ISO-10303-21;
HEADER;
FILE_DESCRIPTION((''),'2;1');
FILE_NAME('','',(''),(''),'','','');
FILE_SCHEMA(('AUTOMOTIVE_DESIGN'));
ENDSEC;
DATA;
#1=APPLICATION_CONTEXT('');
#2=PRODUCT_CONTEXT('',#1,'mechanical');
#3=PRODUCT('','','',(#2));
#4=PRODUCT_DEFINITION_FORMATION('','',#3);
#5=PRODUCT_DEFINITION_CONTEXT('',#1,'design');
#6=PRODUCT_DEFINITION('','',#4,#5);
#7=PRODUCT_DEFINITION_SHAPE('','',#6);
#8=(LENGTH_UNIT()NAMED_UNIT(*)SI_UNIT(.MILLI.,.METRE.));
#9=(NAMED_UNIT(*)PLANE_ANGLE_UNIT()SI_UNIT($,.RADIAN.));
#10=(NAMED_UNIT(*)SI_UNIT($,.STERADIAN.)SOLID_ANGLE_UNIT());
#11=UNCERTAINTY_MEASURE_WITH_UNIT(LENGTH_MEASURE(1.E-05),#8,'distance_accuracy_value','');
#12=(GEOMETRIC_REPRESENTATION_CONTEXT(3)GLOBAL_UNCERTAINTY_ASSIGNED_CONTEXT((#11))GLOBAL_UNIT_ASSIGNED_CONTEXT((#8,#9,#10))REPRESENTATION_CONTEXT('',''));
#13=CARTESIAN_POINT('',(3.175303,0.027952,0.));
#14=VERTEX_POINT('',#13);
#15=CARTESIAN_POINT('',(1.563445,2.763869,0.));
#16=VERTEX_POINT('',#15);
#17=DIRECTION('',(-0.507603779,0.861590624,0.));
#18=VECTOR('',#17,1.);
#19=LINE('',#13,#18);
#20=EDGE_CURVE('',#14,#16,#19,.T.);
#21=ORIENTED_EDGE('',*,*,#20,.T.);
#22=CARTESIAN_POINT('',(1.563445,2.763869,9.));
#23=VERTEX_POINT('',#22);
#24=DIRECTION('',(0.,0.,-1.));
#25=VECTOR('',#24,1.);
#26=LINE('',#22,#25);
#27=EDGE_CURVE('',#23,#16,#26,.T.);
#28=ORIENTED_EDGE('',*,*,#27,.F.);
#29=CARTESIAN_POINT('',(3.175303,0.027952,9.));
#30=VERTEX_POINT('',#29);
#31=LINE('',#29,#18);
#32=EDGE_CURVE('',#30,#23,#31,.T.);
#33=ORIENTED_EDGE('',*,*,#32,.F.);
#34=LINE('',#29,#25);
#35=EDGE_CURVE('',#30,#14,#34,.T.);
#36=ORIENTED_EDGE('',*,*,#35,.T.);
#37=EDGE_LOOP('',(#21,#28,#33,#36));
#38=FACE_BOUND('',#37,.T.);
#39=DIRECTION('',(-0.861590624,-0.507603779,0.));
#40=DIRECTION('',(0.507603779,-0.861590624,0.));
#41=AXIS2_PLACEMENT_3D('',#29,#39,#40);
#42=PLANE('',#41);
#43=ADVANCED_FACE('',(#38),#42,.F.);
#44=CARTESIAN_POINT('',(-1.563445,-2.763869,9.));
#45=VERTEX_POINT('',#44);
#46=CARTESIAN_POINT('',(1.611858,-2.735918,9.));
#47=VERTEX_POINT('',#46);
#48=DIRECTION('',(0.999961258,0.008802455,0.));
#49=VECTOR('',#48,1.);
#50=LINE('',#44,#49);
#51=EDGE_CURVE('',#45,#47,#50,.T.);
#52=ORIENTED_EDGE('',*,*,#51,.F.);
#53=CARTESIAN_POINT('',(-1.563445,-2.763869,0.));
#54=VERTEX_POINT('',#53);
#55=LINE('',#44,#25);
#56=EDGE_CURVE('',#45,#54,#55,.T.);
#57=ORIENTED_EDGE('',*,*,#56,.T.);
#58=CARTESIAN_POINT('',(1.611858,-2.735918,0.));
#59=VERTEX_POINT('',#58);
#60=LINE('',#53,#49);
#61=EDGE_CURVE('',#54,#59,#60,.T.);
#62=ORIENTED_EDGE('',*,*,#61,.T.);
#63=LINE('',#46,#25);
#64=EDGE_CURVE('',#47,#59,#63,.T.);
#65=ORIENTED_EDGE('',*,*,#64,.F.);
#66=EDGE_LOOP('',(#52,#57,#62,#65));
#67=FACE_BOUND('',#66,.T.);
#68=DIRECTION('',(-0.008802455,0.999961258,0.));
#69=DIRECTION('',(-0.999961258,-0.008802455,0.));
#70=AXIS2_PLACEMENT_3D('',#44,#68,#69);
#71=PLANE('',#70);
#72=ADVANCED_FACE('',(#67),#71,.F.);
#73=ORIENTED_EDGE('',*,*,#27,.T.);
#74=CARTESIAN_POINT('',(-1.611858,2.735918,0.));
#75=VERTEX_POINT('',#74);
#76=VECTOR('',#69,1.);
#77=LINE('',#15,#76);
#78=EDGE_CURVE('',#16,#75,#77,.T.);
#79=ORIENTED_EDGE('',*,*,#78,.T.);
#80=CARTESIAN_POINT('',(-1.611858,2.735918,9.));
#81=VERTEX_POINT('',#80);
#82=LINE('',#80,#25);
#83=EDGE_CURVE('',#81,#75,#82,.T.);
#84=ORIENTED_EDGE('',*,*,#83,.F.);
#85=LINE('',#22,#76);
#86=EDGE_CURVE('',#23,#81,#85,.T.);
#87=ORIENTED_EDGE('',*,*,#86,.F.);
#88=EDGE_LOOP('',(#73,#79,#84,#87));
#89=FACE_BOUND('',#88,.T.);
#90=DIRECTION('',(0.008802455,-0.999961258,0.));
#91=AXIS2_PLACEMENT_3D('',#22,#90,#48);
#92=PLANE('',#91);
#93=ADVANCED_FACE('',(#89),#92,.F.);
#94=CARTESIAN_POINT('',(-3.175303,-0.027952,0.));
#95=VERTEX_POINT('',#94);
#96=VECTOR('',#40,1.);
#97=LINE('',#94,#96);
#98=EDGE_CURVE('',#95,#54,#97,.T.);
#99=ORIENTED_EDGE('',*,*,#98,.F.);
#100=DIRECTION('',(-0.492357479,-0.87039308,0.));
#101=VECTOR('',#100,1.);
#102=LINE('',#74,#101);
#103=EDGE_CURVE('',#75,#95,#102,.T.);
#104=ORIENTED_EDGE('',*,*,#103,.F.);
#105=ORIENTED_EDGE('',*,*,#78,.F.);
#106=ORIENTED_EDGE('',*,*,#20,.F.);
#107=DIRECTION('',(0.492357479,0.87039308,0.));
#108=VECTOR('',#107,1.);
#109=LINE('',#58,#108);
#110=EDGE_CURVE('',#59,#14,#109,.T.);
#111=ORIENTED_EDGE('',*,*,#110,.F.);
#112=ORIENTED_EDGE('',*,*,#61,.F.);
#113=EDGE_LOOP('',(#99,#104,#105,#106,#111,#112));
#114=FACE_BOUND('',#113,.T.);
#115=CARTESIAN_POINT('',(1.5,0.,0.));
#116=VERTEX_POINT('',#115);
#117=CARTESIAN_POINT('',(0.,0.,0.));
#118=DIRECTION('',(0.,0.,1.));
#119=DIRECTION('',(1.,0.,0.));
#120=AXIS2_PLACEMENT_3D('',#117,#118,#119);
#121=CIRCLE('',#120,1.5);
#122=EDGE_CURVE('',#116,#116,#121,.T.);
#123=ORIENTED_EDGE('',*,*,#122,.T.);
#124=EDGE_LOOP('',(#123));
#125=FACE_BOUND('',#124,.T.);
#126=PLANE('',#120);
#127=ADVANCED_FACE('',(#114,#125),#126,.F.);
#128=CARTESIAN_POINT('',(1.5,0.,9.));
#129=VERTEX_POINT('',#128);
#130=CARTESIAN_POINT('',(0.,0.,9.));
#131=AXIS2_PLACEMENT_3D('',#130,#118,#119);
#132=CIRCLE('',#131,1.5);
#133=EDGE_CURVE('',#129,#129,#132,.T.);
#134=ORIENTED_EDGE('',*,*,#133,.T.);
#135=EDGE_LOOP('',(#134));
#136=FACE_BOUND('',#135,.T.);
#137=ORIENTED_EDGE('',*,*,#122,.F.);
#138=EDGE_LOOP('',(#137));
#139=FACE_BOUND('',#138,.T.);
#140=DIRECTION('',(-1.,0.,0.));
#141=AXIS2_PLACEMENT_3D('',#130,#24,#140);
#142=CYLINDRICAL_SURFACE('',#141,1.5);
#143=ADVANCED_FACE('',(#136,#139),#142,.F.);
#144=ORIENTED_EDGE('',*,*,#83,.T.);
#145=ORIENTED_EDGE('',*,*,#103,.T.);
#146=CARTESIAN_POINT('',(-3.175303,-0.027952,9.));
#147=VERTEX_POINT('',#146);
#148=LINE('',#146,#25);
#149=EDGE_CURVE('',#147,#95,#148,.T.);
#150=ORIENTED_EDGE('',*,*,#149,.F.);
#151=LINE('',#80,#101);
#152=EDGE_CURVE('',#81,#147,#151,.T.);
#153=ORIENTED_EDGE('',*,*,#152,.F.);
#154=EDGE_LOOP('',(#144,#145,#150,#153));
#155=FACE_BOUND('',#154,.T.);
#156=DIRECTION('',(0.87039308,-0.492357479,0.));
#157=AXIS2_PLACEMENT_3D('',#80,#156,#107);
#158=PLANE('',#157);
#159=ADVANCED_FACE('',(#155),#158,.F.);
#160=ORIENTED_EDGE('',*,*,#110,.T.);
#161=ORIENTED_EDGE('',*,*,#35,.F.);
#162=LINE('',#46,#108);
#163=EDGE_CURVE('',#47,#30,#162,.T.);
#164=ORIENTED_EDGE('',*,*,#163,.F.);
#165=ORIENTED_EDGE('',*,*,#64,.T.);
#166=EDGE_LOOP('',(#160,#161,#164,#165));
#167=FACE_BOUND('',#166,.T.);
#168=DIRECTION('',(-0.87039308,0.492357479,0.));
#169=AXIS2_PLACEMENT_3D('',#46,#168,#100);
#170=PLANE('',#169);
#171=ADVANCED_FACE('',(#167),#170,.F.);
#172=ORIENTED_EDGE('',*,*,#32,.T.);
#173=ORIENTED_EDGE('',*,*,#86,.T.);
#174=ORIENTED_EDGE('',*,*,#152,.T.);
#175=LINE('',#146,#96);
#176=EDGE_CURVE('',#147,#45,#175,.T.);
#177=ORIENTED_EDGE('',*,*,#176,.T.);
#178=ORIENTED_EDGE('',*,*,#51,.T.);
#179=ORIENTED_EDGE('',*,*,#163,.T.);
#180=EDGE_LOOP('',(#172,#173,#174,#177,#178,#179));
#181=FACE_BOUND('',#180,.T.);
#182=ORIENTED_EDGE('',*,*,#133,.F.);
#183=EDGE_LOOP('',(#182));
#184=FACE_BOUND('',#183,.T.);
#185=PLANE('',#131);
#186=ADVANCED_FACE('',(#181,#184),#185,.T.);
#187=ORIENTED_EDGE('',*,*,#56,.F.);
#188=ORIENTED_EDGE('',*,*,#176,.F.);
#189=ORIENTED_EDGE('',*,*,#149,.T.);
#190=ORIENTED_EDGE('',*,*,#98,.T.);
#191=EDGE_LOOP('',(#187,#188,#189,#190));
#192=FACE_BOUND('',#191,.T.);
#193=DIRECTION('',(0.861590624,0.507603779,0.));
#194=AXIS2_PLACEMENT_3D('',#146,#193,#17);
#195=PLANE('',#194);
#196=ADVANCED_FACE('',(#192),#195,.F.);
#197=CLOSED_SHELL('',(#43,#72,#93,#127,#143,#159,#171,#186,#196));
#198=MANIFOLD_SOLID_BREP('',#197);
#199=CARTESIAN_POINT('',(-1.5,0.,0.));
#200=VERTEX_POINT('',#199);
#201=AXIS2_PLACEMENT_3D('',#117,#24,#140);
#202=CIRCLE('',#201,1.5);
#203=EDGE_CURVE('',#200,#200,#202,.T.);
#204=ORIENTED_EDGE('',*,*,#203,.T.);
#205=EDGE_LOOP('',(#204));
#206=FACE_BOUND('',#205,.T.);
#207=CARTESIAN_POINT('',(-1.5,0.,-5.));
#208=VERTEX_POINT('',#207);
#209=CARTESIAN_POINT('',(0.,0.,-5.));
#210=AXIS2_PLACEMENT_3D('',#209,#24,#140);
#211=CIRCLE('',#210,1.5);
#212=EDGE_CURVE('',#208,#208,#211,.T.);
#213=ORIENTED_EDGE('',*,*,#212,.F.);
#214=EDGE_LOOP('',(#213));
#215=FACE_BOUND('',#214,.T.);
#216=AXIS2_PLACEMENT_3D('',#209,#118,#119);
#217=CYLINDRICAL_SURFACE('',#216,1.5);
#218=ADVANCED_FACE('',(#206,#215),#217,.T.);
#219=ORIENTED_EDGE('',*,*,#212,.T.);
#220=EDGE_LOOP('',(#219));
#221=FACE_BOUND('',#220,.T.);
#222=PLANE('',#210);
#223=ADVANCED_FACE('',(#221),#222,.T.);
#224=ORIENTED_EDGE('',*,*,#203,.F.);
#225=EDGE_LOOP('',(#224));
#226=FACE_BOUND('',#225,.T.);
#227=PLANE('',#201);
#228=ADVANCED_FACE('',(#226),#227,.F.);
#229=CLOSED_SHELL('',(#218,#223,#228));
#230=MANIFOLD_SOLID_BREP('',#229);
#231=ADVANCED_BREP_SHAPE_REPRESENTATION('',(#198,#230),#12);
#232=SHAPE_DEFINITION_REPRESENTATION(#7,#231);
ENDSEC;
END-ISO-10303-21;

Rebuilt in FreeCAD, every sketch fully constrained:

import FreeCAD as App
import Part
import Sketcher

doc = App.newDocument("Part")
body = doc.addObject("PartDesign::Body", "Body")

# Sketch on XY plane
sketch1 = doc.addObject("Sketcher::SketchObject", "Sketch")
body.addObject(sketch1)
sketch1.AttachmentSupport = (doc.XY_Plane, [""])
sketch1.MapMode = "FlatFace"
sketch1.addGeometry([
    Part.LineSegment(App.Vector(1.6, -2.7, 0), App.Vector(3.2, 0, 0)),  # 0
    Part.LineSegment(App.Vector(3.2, 0, 0), App.Vector(1.6, 2.8, 0)),  # 1
    Part.LineSegment(App.Vector(1.6, 2.8, 0), App.Vector(-1.6, 2.7, 0)),  # 2
    Part.LineSegment(App.Vector(-1.6, 2.7, 0), App.Vector(-3.2, 0, 0)),  # 3
    Part.LineSegment(App.Vector(-3.2, 0, 0), App.Vector(-1.6, -2.8, 0)),  # 4
    Part.LineSegment(App.Vector(-1.6, -2.8, 0), App.Vector(1.6, -2.7, 0)),  # 5
    Part.Circle(App.Vector(0, 0, 0), App.Vector(0, 0, 1), 1.5),  # 6
], False)
sketch1.addConstraint([
    Sketcher.Constraint("Coincident", 0, 2, 1, 1),
    Sketcher.Constraint("Coincident", 1, 2, 2, 1),
    Sketcher.Constraint("Coincident", 2, 2, 3, 1),
    Sketcher.Constraint("Coincident", 3, 2, 4, 1),
    Sketcher.Constraint("Coincident", 4, 2, 5, 1),
    Sketcher.Constraint("Coincident", 5, 2, 0, 1),
    Sketcher.Constraint("Coincident", 6, 3, -1, 1),
    Sketcher.Constraint("Symmetric", 0, 2, 3, 2, -1, 1),
    Sketcher.Constraint("Symmetric", 1, 2, 4, 2, -1, 1),
    Sketcher.Constraint("Symmetric", 2, 2, 5, 2, -1, 1),
    Sketcher.Constraint("Equal", 0, 1),
    Sketcher.Constraint("Equal", 1, 2),
    Sketcher.Constraint("Diameter", 6, 3.0),
    Sketcher.Constraint("DistanceY", -1, 1, 0, 2, 0.027952),
    Sketcher.Constraint("DistanceY", -1, 1, 1, 2, 2.763869),
    Sketcher.Constraint("DistanceX", 2, 2, -1, 1, 1.611858),
    Sketcher.Constraint("DistanceX", 1, 2, 0, 2, 1.611858),
])
pad1 = doc.addObject("PartDesign::Pad", "Pad")
body.addObject(pad1)
pad1.Profile = sketch1
pad1.Length = 9
body2 = doc.addObject("PartDesign::Body", "Body001")

# Sketch on XY plane
sketch2 = doc.addObject("Sketcher::SketchObject", "Sketch001")
body2.addObject(sketch2)
sketch2.AttachmentSupport = (doc.getObject("XY_Plane001"), [""])
sketch2.MapMode = "FlatFace"
sketch2.addGeometry(Part.Circle(App.Vector(0, 0, 0), App.Vector(0, 0, 1), 1.5), False)
sketch2.addConstraint([
    Sketcher.Constraint("Coincident", 0, 3, -1, 1),
    Sketcher.Constraint("Diameter", 0, 3.0),
])
pad2 = doc.addObject("PartDesign::Pad", "Pad001")
body2.addObject(pad2)
pad2.Profile = sketch2
pad2.Length = 5
pad2.Reversed = True

doc.recompute()
